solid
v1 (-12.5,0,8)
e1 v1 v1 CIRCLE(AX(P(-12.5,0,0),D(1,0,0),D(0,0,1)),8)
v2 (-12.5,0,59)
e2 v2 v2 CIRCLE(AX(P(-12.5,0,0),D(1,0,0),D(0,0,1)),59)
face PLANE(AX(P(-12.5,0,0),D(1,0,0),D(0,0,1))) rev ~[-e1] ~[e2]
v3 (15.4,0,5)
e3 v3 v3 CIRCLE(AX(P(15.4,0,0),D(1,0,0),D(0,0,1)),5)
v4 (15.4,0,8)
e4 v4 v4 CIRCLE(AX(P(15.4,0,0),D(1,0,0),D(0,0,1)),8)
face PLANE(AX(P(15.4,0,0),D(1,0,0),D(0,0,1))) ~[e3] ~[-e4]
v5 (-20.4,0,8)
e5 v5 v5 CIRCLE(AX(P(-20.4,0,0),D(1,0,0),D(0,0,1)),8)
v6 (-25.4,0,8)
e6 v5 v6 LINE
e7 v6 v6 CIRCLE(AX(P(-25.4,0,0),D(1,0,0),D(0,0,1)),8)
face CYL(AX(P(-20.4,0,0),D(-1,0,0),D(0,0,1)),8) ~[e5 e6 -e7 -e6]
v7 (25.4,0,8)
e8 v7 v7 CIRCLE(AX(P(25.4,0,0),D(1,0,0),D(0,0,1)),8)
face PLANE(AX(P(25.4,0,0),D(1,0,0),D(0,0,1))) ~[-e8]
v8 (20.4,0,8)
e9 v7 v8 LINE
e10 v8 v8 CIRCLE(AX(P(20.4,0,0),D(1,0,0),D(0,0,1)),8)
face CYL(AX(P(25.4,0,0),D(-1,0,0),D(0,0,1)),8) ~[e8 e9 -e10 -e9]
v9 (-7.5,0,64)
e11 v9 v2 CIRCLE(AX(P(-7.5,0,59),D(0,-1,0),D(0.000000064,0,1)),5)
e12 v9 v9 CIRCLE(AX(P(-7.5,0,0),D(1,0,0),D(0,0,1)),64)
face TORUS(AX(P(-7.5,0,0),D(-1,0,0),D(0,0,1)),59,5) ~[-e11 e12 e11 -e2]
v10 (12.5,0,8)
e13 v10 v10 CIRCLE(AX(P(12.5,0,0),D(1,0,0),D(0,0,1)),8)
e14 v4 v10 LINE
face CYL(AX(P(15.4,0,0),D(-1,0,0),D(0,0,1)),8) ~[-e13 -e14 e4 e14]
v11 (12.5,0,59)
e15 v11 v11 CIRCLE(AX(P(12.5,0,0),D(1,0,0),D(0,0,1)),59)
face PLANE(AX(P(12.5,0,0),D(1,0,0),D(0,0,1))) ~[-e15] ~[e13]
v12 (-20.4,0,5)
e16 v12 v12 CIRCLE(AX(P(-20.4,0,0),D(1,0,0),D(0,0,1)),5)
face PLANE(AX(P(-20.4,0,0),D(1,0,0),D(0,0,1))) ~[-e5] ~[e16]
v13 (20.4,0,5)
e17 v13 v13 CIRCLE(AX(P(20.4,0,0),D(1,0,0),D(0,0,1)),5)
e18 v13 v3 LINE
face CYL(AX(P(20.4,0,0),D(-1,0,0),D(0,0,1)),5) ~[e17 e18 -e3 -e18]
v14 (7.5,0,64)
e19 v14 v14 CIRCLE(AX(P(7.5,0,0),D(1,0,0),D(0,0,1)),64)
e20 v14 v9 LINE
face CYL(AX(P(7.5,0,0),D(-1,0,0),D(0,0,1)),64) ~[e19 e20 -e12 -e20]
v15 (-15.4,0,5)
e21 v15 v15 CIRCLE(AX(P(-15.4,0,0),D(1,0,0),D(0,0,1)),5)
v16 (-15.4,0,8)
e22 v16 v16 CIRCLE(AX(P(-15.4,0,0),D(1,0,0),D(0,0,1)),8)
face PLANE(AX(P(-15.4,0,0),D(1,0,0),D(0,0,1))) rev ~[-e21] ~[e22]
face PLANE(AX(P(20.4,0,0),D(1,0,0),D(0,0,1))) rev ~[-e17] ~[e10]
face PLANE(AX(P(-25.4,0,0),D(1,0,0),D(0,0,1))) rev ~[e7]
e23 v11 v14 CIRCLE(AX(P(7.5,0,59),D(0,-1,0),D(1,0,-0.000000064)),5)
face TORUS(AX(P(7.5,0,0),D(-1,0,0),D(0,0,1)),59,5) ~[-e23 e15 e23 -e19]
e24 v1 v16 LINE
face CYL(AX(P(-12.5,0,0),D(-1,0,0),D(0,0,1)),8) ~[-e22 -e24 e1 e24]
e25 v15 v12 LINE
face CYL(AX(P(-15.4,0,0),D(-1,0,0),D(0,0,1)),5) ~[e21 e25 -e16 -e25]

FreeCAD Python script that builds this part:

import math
import FreeCAD as App
import Part
import Sketcher
from FreeCAD import Vector

doc = App.newDocument("Part")
body = doc.addObject("PartDesign::Body", "Body")

sketch1 = doc.addObject("Sketcher::SketchObject", "Sketch")
body.addObject(sketch1)
sketch1.AttachmentSupport = (doc.XZ_Plane, [""])
sketch1.MapMode = "FlatFace"
sketch1.addGeometry([
    Part.LineSegment(Vector(-20.4, 8, 0), Vector(-25.4, 8, 0)),
    Part.LineSegment(Vector(-25.4, 8, 0), Vector(-25.4, 0, 0)),
    Part.LineSegment(Vector(-25.4, 0, 0), Vector(25.4, 0, 0)),
    Part.LineSegment(Vector(25.4, 0, 0), Vector(25.4, 8, 0)),
    Part.LineSegment(Vector(25.4, 8, 0), Vector(20.4, 8, 0)),
    Part.LineSegment(Vector(20.4, 8, 0), Vector(20.4, 5, 0)),
    Part.LineSegment(Vector(20.4, 5, 0), Vector(15.4, 5, 0)),
    Part.LineSegment(Vector(15.4, 5, 0), Vector(15.4, 8, 0)),
    Part.LineSegment(Vector(15.4, 8, 0), Vector(12.5, 8, 0)),
    Part.LineSegment(Vector(12.5, 8, 0), Vector(12.5, 59, 0)),
    Part.ArcOfCircle(Part.Circle(Vector(7.5, 59, 0), Vector(0, 0, 1), 5), math.radians(0), math.radians(90)),
    Part.LineSegment(Vector(7.5, 64, 0), Vector(-7.5, 64, 0)),
    Part.ArcOfCircle(Part.Circle(Vector(-7.5, 59, 0), Vector(0, 0, 1), 5), math.radians(90), math.radians(180)),
    Part.LineSegment(Vector(-12.5, 59, 0), Vector(-12.5, 8, 0)),
    Part.LineSegment(Vector(-12.5, 8, 0), Vector(-15.4, 8, 0)),
    Part.LineSegment(Vector(-15.4, 8, 0), Vector(-15.4, 5, 0)),
    Part.LineSegment(Vector(-15.4, 5, 0), Vector(-20.4, 5, 0)),
    Part.LineSegment(Vector(-20.4, 5, 0), Vector(-20.4, 8, 0)),
], False)
sketch1.addConstraint([
    Sketcher.Constraint("Coincident", 0, 2, 1, 1),
    Sketcher.Constraint("Coincident", 1, 2, 2, 1),
    Sketcher.Constraint("Coincident", 2, 2, 3, 1),
    Sketcher.Constraint("Coincident", 3, 2, 4, 1),
    Sketcher.Constraint("Coincident", 4, 2, 5, 1),
    Sketcher.Constraint("Coincident", 5, 2, 6, 1),
    Sketcher.Constraint("Coincident", 6, 2, 7, 1),
    Sketcher.Constraint("Coincident", 7, 2, 8, 1),
    Sketcher.Constraint("Coincident", 8, 2, 9, 1),
    Sketcher.Constraint("Tangent", 9, 2, 10, 1),
    Sketcher.Constraint("Tangent", 10, 2, 11, 1),
    Sketcher.Constraint("Tangent", 11, 2, 12, 1),
    Sketcher.Constraint("Tangent", 12, 2, 13, 1),
    Sketcher.Constraint("Coincident", 13, 2, 14, 1),
    Sketcher.Constraint("Coincident", 14, 2, 15, 1),
    Sketcher.Constraint("Coincident", 15, 2, 16, 1),
    Sketcher.Constraint("Coincident", 16, 2, 17, 1),
    Sketcher.Constraint("Coincident", 17, 2, 0, 1),
    Sketcher.Constraint("Horizontal", 0),
    Sketcher.Constraint("Vertical", 1),
    Sketcher.Constraint("Horizontal", 2),
    Sketcher.Constraint("Vertical", 3),
    Sketcher.Constraint("Horizontal", 4),
    Sketcher.Constraint("Vertical", 5),
    Sketcher.Constraint("Horizontal", 6),
    Sketcher.Constraint("Vertical", 7),
    Sketcher.Constraint("Horizontal", 8),
    Sketcher.Constraint("Vertical", 9),
    Sketcher.Constraint("Horizontal", 11),
    Sketcher.Constraint("Vertical", 13),
    Sketcher.Constraint("Horizontal", 14),
    Sketcher.Constraint("Vertical", 15),
    Sketcher.Constraint("Horizontal", 16),
    Sketcher.Constraint("Vertical", 17),
    Sketcher.Constraint("Equal", 10, 12),
    Sketcher.Constraint("Symmetric", 1, 2, 2, 2, -1, 1),
    Sketcher.Constraint("Symmetric", 8, 2, 13, 2, -2),
    Sketcher.Constraint("Symmetric", 6, 2, 15, 2, -2),
    Sketcher.Constraint("Symmetric", 4, 2, 17, 2, -2),
    Sketcher.Constraint("Horizontal", 4, 2, 7, 2),
    Sketcher.Constraint("Equal", 4, 6),
    Sketcher.Constraint("Radius", 10, 5.0),
    Sketcher.Constraint("DistanceX", 0, 2, 0, 1, 5.0),
    Sketcher.Constraint("DistanceX", 11, 2, 11, 1, 15.0),
    Sketcher.Constraint("DistanceY", 1, 2, 1, 1, 8.0),
    Sketcher.Constraint("DistanceY", 5, 2, 5, 1, 3.0),
    Sketcher.Constraint("DistanceY", 9, 1, 9, 2, 51.0),
    Sketcher.Constraint("DistanceX", 2, 1, 2, 2, 50.8),
])
revolution = doc.addObject("PartDesign::Revolution", "Revolution")
body.addObject(revolution)
revolution.Profile = sketch1
revolution.ReferenceAxis = (sketch1, ["H_Axis"])
revolution.Angle = 360

doc.recompute()
